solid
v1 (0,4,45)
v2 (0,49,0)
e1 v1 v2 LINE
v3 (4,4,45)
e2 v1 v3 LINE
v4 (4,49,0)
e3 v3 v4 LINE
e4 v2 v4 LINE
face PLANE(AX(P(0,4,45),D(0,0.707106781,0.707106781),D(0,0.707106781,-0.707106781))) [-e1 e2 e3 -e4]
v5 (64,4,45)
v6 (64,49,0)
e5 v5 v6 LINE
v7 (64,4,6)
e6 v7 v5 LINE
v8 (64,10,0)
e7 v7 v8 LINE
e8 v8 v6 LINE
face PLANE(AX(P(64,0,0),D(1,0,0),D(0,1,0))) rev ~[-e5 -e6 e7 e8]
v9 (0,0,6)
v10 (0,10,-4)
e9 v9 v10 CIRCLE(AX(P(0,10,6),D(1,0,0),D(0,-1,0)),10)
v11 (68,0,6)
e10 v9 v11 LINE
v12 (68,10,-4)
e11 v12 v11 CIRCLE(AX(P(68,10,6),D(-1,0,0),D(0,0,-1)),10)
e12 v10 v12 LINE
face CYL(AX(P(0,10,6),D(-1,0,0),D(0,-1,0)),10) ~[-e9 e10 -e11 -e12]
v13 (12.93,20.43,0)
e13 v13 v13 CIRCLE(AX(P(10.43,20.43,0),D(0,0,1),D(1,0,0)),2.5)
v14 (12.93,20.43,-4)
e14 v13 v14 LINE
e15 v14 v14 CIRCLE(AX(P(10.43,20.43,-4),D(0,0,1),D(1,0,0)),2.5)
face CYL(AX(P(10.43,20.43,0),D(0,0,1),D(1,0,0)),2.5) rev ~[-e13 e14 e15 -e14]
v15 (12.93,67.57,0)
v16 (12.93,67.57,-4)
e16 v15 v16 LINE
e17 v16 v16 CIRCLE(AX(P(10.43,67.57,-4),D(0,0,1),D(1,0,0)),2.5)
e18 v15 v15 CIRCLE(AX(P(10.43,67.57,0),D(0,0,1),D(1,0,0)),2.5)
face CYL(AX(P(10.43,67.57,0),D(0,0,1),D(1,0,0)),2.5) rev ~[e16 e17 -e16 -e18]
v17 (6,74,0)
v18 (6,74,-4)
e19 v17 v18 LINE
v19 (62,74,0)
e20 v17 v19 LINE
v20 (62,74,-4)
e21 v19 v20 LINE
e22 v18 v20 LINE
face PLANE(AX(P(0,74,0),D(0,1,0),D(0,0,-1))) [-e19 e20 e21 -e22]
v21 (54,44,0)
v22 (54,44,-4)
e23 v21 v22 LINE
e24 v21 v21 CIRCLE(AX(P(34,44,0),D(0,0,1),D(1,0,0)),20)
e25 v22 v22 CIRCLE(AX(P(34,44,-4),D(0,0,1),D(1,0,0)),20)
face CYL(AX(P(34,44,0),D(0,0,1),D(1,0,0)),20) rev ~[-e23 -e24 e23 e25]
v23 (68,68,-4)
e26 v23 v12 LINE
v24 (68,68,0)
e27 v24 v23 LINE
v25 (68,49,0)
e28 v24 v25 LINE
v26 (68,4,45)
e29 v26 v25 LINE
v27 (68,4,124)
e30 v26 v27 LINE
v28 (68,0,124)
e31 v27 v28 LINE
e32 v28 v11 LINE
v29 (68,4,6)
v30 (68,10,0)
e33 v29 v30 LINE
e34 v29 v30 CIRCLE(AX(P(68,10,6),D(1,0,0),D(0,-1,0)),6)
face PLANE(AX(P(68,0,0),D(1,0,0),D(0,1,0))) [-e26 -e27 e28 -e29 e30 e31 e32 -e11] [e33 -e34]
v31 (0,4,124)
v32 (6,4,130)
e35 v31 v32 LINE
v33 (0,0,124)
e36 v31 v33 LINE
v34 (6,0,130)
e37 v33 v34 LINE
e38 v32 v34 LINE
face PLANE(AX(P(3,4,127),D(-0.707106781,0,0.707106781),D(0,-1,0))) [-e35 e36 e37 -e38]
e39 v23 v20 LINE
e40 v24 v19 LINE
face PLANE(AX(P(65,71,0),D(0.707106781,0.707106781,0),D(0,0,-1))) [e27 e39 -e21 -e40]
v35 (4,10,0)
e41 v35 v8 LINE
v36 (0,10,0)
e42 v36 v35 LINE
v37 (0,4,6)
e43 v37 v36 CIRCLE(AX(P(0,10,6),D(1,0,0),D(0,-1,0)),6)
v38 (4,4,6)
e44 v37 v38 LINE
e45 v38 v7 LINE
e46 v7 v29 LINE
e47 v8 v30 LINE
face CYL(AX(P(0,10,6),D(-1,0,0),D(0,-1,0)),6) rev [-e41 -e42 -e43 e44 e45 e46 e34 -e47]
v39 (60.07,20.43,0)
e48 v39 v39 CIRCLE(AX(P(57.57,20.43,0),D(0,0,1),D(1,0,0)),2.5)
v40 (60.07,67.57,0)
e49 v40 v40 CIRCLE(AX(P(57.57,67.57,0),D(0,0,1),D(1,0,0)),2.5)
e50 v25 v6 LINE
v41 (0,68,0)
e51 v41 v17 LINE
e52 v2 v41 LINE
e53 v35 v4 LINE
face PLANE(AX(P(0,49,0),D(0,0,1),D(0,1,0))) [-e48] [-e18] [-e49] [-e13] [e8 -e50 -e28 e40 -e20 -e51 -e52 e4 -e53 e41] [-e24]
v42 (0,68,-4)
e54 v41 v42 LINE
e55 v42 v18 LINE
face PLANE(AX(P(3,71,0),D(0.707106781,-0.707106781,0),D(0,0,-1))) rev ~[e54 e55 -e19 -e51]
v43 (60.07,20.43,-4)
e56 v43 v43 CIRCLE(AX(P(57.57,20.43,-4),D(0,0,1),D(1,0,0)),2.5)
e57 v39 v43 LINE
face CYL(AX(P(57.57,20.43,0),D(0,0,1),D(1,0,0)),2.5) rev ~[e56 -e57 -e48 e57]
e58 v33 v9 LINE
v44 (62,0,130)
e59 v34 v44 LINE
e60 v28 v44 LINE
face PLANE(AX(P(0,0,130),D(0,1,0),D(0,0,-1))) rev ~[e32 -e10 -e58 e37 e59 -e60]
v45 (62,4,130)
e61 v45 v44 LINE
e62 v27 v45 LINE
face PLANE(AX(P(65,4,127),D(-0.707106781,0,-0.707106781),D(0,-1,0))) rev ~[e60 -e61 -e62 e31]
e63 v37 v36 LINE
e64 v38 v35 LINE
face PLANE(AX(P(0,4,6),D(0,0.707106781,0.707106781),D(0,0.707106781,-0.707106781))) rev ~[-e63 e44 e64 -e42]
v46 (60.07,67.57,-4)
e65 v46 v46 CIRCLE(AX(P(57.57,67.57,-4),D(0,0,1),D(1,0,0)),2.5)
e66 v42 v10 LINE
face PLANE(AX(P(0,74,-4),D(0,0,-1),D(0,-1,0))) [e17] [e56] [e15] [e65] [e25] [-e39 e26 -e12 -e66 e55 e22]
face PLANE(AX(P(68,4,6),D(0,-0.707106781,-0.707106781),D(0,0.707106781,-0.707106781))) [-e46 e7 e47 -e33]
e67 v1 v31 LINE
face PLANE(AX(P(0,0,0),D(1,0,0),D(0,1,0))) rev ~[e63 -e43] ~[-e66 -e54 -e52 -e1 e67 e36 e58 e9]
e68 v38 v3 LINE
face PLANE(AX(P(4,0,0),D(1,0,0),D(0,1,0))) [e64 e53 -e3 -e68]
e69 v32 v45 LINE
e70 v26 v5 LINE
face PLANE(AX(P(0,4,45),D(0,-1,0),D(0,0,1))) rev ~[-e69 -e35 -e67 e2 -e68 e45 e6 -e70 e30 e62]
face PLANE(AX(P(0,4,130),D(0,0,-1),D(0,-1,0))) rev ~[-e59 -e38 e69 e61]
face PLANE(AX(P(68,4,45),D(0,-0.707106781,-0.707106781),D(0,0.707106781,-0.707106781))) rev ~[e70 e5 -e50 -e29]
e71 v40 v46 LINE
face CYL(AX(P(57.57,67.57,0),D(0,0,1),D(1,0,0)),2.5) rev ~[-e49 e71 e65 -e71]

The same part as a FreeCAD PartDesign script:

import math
import FreeCAD as App
import Part
import Sketcher
Q = App.Units.Quantity


def edges_at(feature, points):
    """Names of the edges that pass closest to the given points."""
    edges = feature.Shape.Edges
    near = lambda p: min(range(len(edges)), key=lambda i: edges[i].distToShape(Part.Vertex(*p))[0])
    return sorted({f"Edge{near(p) + 1}" for p in points})

doc = App.newDocument("Part")
body = doc.addObject("PartDesign::Body", "Body")

# Sketch on YZ plane
sketch1 = doc.addObject("Sketcher::SketchObject", "Sketch")
body.addObject(sketch1)
sketch1.AttachmentSupport = (doc.YZ_Plane, [""])
sketch1.MapMode = "FlatFace"
sketch1.addGeometry(Part.ArcOfCircle(Part.Circle(App.Vector(10, 6, 0), App.Vector(0, 0, 1), 10), math.radians(180), math.radians(270)), False)
sketch1.addGeometry(Part.LineSegment(App.Vector(10, -4, 0), App.Vector(74, -4, 0)), False)
sketch1.addGeometry(Part.LineSegment(App.Vector(74, -4, 0), App.Vector(74, 0, 0)), False)
sketch1.addGeometry(Part.LineSegment(App.Vector(74, 0, 0), App.Vector(10, 0, 0)), False)
sketch1.addGeometry(Part.ArcOfCircle(Part.Circle(App.Vector(10, 6, 0), App.Vector(0, 0, 1), 6), math.radians(180), math.radians(270)), False)
sketch1.addGeometry(Part.LineSegment(App.Vector(4, 6, 0), App.Vector(4, 130, 0)), False)
sketch1.addGeometry(Part.LineSegment(App.Vector(4, 130, 0), App.Vector(0, 130, 0)), False)
sketch1.addGeometry(Part.LineSegment(App.Vector(0, 130, 0), App.Vector(0, 6, 0)), False)
sketch1.addConstraint(Sketcher.Constraint("Tangent", 0, 2, 1, 1))
sketch1.addConstraint(Sketcher.Constraint("Coincident", 1, 2, 2, 1))
sketch1.addConstraint(Sketcher.Constraint("Coincident", 2, 2, 3, 1))
sketch1.addConstraint(Sketcher.Constraint("Tangent", 3, 2, 4, 2))
sketch1.addConstraint(Sketcher.Constraint("Tangent", 4, 1, 5, 1))
sketch1.addConstraint(Sketcher.Constraint("Coincident", 5, 2, 6, 1))
sketch1.addConstraint(Sketcher.Constraint("Coincident", 6, 2, 7, 1))
sketch1.addConstraint(Sketcher.Constraint("Tangent", 7, 2, 0, 1))
sketch1.addConstraint(Sketcher.Constraint("Horizontal", 1))
sketch1.addConstraint(Sketcher.Constraint("Vertical", 2))
sketch1.addConstraint(Sketcher.Constraint("Horizontal", 3))
sketch1.addConstraint(Sketcher.Constraint("Vertical", 5))
sketch1.addConstraint(Sketcher.Constraint("Horizontal", 6))
sketch1.addConstraint(Sketcher.Constraint("Vertical", 7))
sketch1.addConstraint(Sketcher.Constraint("Coincident", 4, 3, 0, 3))
sketch1.addConstraint(Sketcher.Constraint("PointOnObject", 2, 2, -1))
sketch1.addConstraint(Sketcher.Constraint("PointOnObject", 6, 2, -2))
sketch1.addConstraint(Sketcher.Constraint("Radius", 0, Q("10 mm")))
sketch1.addConstraint(Sketcher.Constraint("DistanceX", 6, 2, 6, 1, Q("4 mm")))
sketch1.addConstraint(Sketcher.Constraint("DistanceY", -1, 1, 5, 2, Q("130 mm")))
sketch1.addConstraint(Sketcher.Constraint("DistanceX", 4, 1, 2, 2, Q("70 mm")))
pad1 = doc.addObject("PartDesign::Pad", "Pad")
body.addObject(pad1)
pad1.Profile = sketch1
pad1.Length = 68

# Sketch on YZ plane
sketch2 = doc.addObject("Sketcher::SketchObject", "Sketch001")
body.addObject(sketch2)
sketch2.AttachmentSupport = (doc.YZ_Plane, [""])
sketch2.MapMode = "FlatFace"
sketch2.addGeometry(Part.LineSegment(App.Vector(49, 0, 0), App.Vector(4, 45, 0)), False)
sketch2.addGeometry(Part.LineSegment(App.Vector(4, 45, 0), App.Vector(4, 6, 0)), False)
sketch2.addGeometry(Part.LineSegment(App.Vector(4, 6, 0), App.Vector(10, 0, 0)), False)
sketch2.addGeometry(Part.LineSegment(App.Vector(10, 0, 0), App.Vector(49, 0, 0)), False)
sketch2.addConstraint(Sketcher.Constraint("Coincident", 0, 2, 1, 1))
sketch2.addConstraint(Sketcher.Constraint("Coincident", 1, 2, 2, 1))
sketch2.addConstraint(Sketcher.Constraint("Coincident", 2, 2, 3, 1))
sketch2.addConstraint(Sketcher.Constraint("Coincident", 3, 2, 0, 1))
sketch2.addConstraint(Sketcher.Constraint("Vertical", 1))
sketch2.addConstraint(Sketcher.Constraint("Horizontal", 3))
sketch2.addConstraint(Sketcher.Constraint("PointOnObject", 2, 2, -1))
sketch2.addConstraint(Sketcher.Constraint("Parallel", 0, 2))
sketch2.addConstraint(Sketcher.Constraint("Equal", 3, 1))
sketch2.addConstraint(Sketcher.Constraint("DistanceX", -1, 1, 0, 2, Q("4 mm")))
sketch2.addConstraint(Sketcher.Constraint("DistanceY", -1, 1, 0, 2, Q("45 mm")))
sketch2.addConstraint(Sketcher.Constraint("DistanceX", -1, 1, 2, 2, Q("10 mm")))
pad2 = doc.addObject("PartDesign::Pad", "Pad001")
body.addObject(pad2)
pad2.Profile = sketch2
pad2.Length = 4

# Sketch on YZ plane
sketch3 = doc.addObject("Sketcher::SketchObject", "Sketch002")
body.addObject(sketch3)
sketch3.AttachmentSupport = (doc.YZ_Plane, [""])
sketch3.MapMode = "FlatFace"
sketch3.AttachmentOffset = App.Placement(App.Vector(0, 0, 68), App.Rotation())
sketch3.addGeometry(Part.LineSegment(App.Vector(49, 0, 0), App.Vector(4, 45, 0)), False)
sketch3.addGeometry(Part.LineSegment(App.Vector(4, 45, 0), App.Vector(4, 6, 0)), False)
sketch3.addGeometry(Part.LineSegment(App.Vector(4, 6, 0), App.Vector(10, 0, 0)), False)
sketch3.addGeometry(Part.LineSegment(App.Vector(10, 0, 0), App.Vector(49, 0, 0)), False)
sketch3.addConstraint(Sketcher.Constraint("Coincident", 0, 2, 1, 1))
sketch3.addConstraint(Sketcher.Constraint("Coincident", 1, 2, 2, 1))
sketch3.addConstraint(Sketcher.Constraint("Coincident", 2, 2, 3, 1))
sketch3.addConstraint(Sketcher.Constraint("Coincident", 3, 2, 0, 1))
sketch3.addConstraint(Sketcher.Constraint("Vertical", 1))
sketch3.addConstraint(Sketcher.Constraint("Horizontal", 3))
sketch3.addConstraint(Sketcher.Constraint("PointOnObject", 2, 2, -1))
sketch3.addConstraint(Sketcher.Constraint("Parallel", 0, 2))
sketch3.addConstraint(Sketcher.Constraint("Equal", 3, 1))
sketch3.addConstraint(Sketcher.Constraint("DistanceX", -1, 1, 0, 2, Q("4 mm")))
sketch3.addConstraint(Sketcher.Constraint("DistanceY", -1, 1, 0, 2, Q("45 mm")))
sketch3.addConstraint(Sketcher.Constraint("DistanceX", -1, 1, 2, 2, Q("10 mm")))
pad3 = doc.addObject("PartDesign::Pad", "Pad002")
body.addObject(pad3)
pad3.Profile = sketch3
pad3.Length = 4
pad3.Reversed = True

# Sketch on XY plane
sketch4 = doc.addObject("Sketcher::SketchObject", "Sketch003")
body.addObject(sketch4)
sketch4.AttachmentSupport = (doc.XY_Plane, [""])
sketch4.MapMode = "FlatFace"
sketch4.addGeometry(Part.Circle(App.Vector(34, 44, 0), App.Vector(0, 0, 1), 20), False)
sketch4.addGeometry(Part.Circle(App.Vector(10.4, 67.6, 0), App.Vector(0, 0, 1), 2.5), False)
sketch4.addGeometry(Part.Circle(App.Vector(57.6, 67.6, 0), App.Vector(0, 0, 1), 2.5), False)
sketch4.addGeometry(Part.Circle(App.Vector(57.6, 20.4, 0), App.Vector(0, 0, 1), 2.5), False)
sketch4.addGeometry(Part.Circle(App.Vector(10.4, 20.4, 0), App.Vector(0, 0, 1), 2.5), False)
sketch4.addConstraint(Sketcher.Constraint("Equal", 1, 2))
sketch4.addConstraint(Sketcher.Constraint("Equal", 2, 3))
sketch4.addConstraint(Sketcher.Constraint("Equal", 3, 4))
sketch4.addConstraint(Sketcher.Constraint("Horizontal", 1, 3, 2, 3))
sketch4.addConstraint(Sketcher.Constraint("Horizontal", 3, 3, 4, 3))
sketch4.addConstraint(Sketcher.Constraint("Vertical", 2, 3, 3, 3))
sketch4.addConstraint(Sketcher.Constraint("Vertical", 1, 3, 4, 3))
sketch4.addConstraint(Sketcher.Constraint("Diameter", 0, Q("40 mm")))
sketch4.addConstraint(Sketcher.Constraint("Diameter", 1, Q("5 mm")))
sketch4.addConstraint(Sketcher.Constraint("DistanceX", 1, 3, 2, 3, Q("47.14 mm")))
sketch4.addConstraint(Sketcher.Constraint("DistanceY", 3, 3, 2, 3, Q("47.14 mm")))
sketch4.addConstraint(Sketcher.Constraint("DistanceX", -1, 1, 0, 3, Q("34 mm")))
sketch4.addConstraint(Sketcher.Constraint("DistanceY", -1, 1, 0, 3, Q("44 mm")))
sketch4.addConstraint(Sketcher.Constraint("DistanceX", -1, 1, 1, 3, Q("10.43 mm")))
sketch4.addConstraint(Sketcher.Constraint("DistanceY", -1, 1, 1, 3, Q("67.57 mm")))
pocket1 = doc.addObject("PartDesign::Pocket", "Pocket")
body.addObject(pocket1)
pocket1.Profile = sketch4
pocket1.Type = "ThroughAll"
doc.recompute()

chamfer = doc.addObject("PartDesign::Chamfer", "Chamfer")
body.addObject(chamfer)
chamfer.Base = (pocket1, edges_at(pocket1, [
    (68, 74, -2),
    (0, 74, -2),
    (68, 2, 130),
    (0, 2, 130),
]))
chamfer.Size = 6

doc.recompute()
